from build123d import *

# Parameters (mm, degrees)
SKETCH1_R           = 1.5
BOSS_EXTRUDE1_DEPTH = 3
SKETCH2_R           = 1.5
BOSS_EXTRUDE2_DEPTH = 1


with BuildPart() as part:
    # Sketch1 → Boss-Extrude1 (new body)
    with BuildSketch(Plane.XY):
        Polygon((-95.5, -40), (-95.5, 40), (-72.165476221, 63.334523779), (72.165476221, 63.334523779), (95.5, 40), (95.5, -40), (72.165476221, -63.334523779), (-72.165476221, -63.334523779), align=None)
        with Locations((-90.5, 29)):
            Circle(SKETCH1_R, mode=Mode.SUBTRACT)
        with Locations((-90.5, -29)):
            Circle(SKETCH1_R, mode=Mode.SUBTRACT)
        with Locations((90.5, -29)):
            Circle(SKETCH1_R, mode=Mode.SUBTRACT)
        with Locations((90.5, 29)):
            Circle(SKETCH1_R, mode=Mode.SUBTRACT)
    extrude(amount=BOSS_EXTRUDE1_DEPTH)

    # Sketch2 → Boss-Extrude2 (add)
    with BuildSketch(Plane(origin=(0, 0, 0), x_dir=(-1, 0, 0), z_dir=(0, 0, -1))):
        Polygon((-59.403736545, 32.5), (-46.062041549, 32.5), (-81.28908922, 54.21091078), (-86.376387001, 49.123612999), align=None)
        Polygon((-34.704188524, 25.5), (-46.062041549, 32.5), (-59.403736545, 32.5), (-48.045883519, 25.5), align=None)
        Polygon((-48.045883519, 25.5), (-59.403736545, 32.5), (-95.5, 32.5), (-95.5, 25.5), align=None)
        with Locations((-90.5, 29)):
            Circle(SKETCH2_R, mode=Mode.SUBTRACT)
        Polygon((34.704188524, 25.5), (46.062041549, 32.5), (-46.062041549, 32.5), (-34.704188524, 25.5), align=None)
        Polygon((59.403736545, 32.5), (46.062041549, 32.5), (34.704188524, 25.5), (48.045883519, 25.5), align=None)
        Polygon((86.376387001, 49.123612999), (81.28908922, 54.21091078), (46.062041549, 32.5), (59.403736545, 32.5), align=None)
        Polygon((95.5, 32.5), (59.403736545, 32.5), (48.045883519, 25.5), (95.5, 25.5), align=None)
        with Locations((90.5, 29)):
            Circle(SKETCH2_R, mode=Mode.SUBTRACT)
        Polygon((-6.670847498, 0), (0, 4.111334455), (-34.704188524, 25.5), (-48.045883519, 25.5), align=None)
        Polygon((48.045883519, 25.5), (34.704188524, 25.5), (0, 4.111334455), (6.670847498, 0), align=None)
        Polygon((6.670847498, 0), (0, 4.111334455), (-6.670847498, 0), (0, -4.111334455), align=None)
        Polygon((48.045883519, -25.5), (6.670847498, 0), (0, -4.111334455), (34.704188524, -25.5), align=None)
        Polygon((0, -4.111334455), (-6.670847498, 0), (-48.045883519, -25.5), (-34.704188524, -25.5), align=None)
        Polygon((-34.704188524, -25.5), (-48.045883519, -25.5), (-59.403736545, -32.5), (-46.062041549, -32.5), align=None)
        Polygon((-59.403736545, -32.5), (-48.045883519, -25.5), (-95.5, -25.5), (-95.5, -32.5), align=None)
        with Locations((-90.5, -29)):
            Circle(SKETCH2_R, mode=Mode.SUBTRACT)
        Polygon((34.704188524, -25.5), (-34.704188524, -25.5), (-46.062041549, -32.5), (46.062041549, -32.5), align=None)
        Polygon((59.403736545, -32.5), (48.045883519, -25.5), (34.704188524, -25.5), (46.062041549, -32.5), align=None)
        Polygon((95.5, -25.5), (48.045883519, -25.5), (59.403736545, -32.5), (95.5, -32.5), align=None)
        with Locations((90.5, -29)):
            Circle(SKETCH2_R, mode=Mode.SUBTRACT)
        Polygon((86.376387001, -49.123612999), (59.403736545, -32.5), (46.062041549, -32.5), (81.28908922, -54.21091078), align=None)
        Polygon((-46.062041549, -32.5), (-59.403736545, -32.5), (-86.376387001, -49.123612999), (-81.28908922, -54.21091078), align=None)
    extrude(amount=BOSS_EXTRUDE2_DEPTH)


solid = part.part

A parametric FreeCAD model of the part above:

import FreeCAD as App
import Part
import Sketcher

doc = App.newDocument("Part")
params = doc.addObject("Spreadsheet::Sheet", "Params")
for row, (alias, value) in enumerate([
    ("sketch1_diameter", "3 mm"),
    ("sketch1_height", "80 mm"),
    ("sketch1_length", "33 mm"),
    ("pad1_length", "3 mm"),
    ("sketch2_diameter", "3 mm"),
    ("sketch2_height", "7 mm"),
    ("pad2_length", "1 mm"),
], start=1):
    params.set(f"A{row}", alias)
    params.set(f"B{row}", "=" + value)
    params.setAlias(f"B{row}", alias)

body = doc.addObject("PartDesign::Body", "Body")

# Sketch on XY plane
sketch1 = body.newObject("Sketcher::SketchObject", "Sketch")
sketch1.AttachmentSupport = (doc.getObject("XY_Plane"), [""])
sketch1.MapMode = "FlatFace"
sketch1.addGeometry([
    Part.LineSegment(App.Vector(-95.5, 40, 0), App.Vector(-95.5, -40, 0)),  # 0
    Part.LineSegment(App.Vector(-95.5, -40, 0), App.Vector(-72.165476, -63.334524, 0)),  # 1
    Part.LineSegment(App.Vector(-72.165476, -63.334524, 0), App.Vector(72.165476, -63.334524, 0)),  # 2
    Part.LineSegment(App.Vector(72.165476, -63.334524, 0), App.Vector(95.5, -40, 0)),  # 3
    Part.LineSegment(App.Vector(95.5, -40, 0), App.Vector(95.5, 40, 0)),  # 4
    Part.LineSegment(App.Vector(95.5, 40, 0), App.Vector(72.165476, 63.334524, 0)),  # 5
    Part.LineSegment(App.Vector(72.165476, 63.334524, 0), App.Vector(-72.165476, 63.334524, 0)),  # 6
    Part.LineSegment(App.Vector(-72.165476, 63.334524, 0), App.Vector(-95.5, 40, 0)),  # 7
    Part.Circle(App.Vector(90.5, -29, 0), App.Vector(0, 0, 1), 1.5),  # 8
    Part.Circle(App.Vector(-90.5, -29, 0), App.Vector(0, 0, 1), 1.5),  # 9
    Part.Circle(App.Vector(90.5, 29, 0), App.Vector(0, 0, 1), 1.5),  # 10
    Part.Circle(App.Vector(-90.5, 29, 0), App.Vector(0, 0, 1), 1.5),  # 11
], False)
sketch1.addConstraint([
    Sketcher.Constraint("Coincident", 0, 2, 1, 1),
    Sketcher.Constraint("Coincident", 1, 2, 2, 1),
    Sketcher.Constraint("Coincident", 2, 2, 3, 1),
    Sketcher.Constraint("Coincident", 3, 2, 4, 1),
    Sketcher.Constraint("Coincident", 4, 2, 5, 1),
    Sketcher.Constraint("Coincident", 5, 2, 6, 1),
    Sketcher.Constraint("Coincident", 6, 2, 7, 1),
    Sketcher.Constraint("Coincident", 7, 2, 0, 1),
    Sketcher.Constraint("Vertical", 0),
    Sketcher.Constraint("Horizontal", 2),
    Sketcher.Constraint("Vertical", 4),
    Sketcher.Constraint("Horizontal", 6),
    Sketcher.Constraint("Equal", 8, 9),
    Sketcher.Constraint("Equal", 9, 10),
    Sketcher.Constraint("Equal", 10, 11),
    Sketcher.Constraint("Symmetric", 9, 3, 10, 3, -1, 1),
    Sketcher.Constraint("Symmetric", 8, 3, 11, 3, -1, 1),
    Sketcher.Constraint("Symmetric", 0, 2, 4, 2, -1, 1),
    Sketcher.Constraint("Symmetric", 1, 2, 5, 2, -1, 1),
    Sketcher.Constraint("Symmetric", 8, 3, 9, 3, -2),
    Sketcher.Constraint("Perpendicular", 1, 3),
    Sketcher.Constraint("Perpendicular", 5, 7),
    Sketcher.Constraint("Horizontal", 0, 2, 3, 2),
    Sketcher.Constraint("Horizontal", 4, 2, 7, 2),
    Sketcher.Constraint("Vertical", 2, 2, 5, 2),
    Sketcher.Constraint("Diameter", 8, 3.0),
    Sketcher.Constraint("DistanceY", 0, 2, 0, 1, 80.0),
    Sketcher.Constraint("Distance", 1, 33.0),
    Sketcher.Constraint("DistanceY", 8, 3, -1, 1, 29.0),
    Sketcher.Constraint("DistanceX", 9, 3, 8, 3, 181.0),
    Sketcher.Constraint("DistanceX", 0, 2, 9, 3, 5.0),
])
sketch1.setExpression("Constraints[25]", "Params.sketch1_diameter")
sketch1.setExpression("Constraints[26]", "Params.sketch1_height")
sketch1.setExpression("Constraints[27]", "Params.sketch1_length")
pad1 = body.newObject("PartDesign::Pad", "Pad")
pad1.Profile = sketch1
pad1.setExpression("Length", "Params.pad1_length")

# Sketch on XY plane
sketch2 = body.newObject("Sketcher::SketchObject", "Sketch001")
sketch2.AttachmentSupport = (doc.getObject("XY_Plane"), [""])
sketch2.MapMode = "FlatFace"
sketch2.addGeometry([
    Part.LineSegment(App.Vector(95.5, -32.5, 0), App.Vector(59.403737, -32.5, 0)),  # 0
    Part.LineSegment(App.Vector(59.403737, -32.5, 0), App.Vector(86.376387, -49.123613, 0)),  # 1
    Part.LineSegment(App.Vector(86.376387, -49.123613, 0), App.Vector(81.289089, -54.210911, 0)),  # 2
    Part.LineSegment(App.Vector(81.289089, -54.210911, 0), App.Vector(46.062042, -32.5, 0)),  # 3
    Part.LineSegment(App.Vector(46.062042, -32.5, 0), App.Vector(-46.062042, -32.5, 0)),  # 4
    Part.LineSegment(App.Vector(-46.062042, -32.5, 0), App.Vector(-81.289089, -54.210911, 0)),  # 5
    Part.LineSegment(App.Vector(-81.289089, -54.210911, 0), App.Vector(-86.376387, -49.123613, 0)),  # 6
    Part.LineSegment(App.Vector(-86.376387, -49.123613, 0), App.Vector(-59.403737, -32.5, 0)),  # 7
    Part.LineSegment(App.Vector(-59.403737, -32.5, 0), App.Vector(-95.5, -32.5, 0)),  # 8
    Part.LineSegment(App.Vector(-95.5, -32.5, 0), App.Vector(-95.5, -25.5, 0)),  # 9
    Part.LineSegment(App.Vector(-95.5, -25.5, 0), App.Vector(-48.045884, -25.5, 0)),  # 10
    Part.LineSegment(App.Vector(-48.045884, -25.5, 0), App.Vector(-6.670847, 0, 0)),  # 11
    Part.LineSegment(App.Vector(-6.670847, 0, 0), App.Vector(-48.045884, 25.5, 0)),  # 12
    Part.LineSegment(App.Vector(-48.045884, 25.5, 0), App.Vector(-95.5, 25.5, 0)),  # 13
    Part.LineSegment(App.Vector(-95.5, 25.5, 0), App.Vector(-95.5, 32.5, 0)),  # 14
    Part.LineSegment(App.Vector(-95.5, 32.5, 0), App.Vector(-59.403737, 32.5, 0)),  # 15
    Part.LineSegment(App.Vector(-59.403737, 32.5, 0), App.Vector(-86.376387, 49.123613, 0)),  # 16
    Part.LineSegment(App.Vector(-86.376387, 49.123613, 0), App.Vector(-81.289089, 54.210911, 0)),  # 17
    Part.LineSegment(App.Vector(-81.289089, 54.210911, 0), App.Vector(-46.062042, 32.5, 0)),  # 18
    Part.LineSegment(App.Vector(-46.062042, 32.5, 0), App.Vector(46.062042, 32.5, 0)),  # 19
    Part.LineSegment(App.Vector(46.062042, 32.5, 0), App.Vector(81.289089, 54.210911, 0)),  # 20
    Part.LineSegment(App.Vector(81.289089, 54.210911, 0), App.Vector(86.376387, 49.123613, 0)),  # 21
    Part.LineSegment(App.Vector(86.376387, 49.123613, 0), App.Vector(59.403737, 32.5, 0)),  # 22
    Part.LineSegment(App.Vector(59.403737, 32.5, 0), App.Vector(95.5, 32.5, 0)),  # 23
    Part.LineSegment(App.Vector(95.5, 32.5, 0), App.Vector(95.5, 25.5, 0)),  # 24
    Part.LineSegment(App.Vector(95.5, 25.5, 0), App.Vector(48.045884, 25.5, 0)),  # 25
    Part.LineSegment(App.Vector(48.045884, 25.5, 0), App.Vector(6.670847, 0, 0)),  # 26
    Part.LineSegment(App.Vector(6.670847, 0, 0), App.Vector(48.045884, -25.5, 0)),  # 27
    Part.LineSegment(App.Vector(48.045884, -25.5, 0), App.Vector(95.5, -25.5, 0)),  # 28
    Part.LineSegment(App.Vector(95.5, -25.5, 0), App.Vector(95.5, -32.5, 0)),  # 29
    Part.Circle(App.Vector(90.5, -29, 0), App.Vector(0, 0, 1), 1.5),  # 30
    Part.Circle(App.Vector(-90.5, -29, 0), App.Vector(0, 0, 1), 1.5),  # 31
    Part.LineSegment(App.Vector(0, -4.111334, 0), App.Vector(-34.704189, -25.5, 0)),  # 32
    Part.LineSegment(App.Vector(-34.704189, -25.5, 0), App.Vector(34.704189, -25.5, 0)),  # 33
    Part.LineSegment(App.Vector(34.704189, -25.5, 0), App.Vector(0, -4.111334, 0)),  # 34
    Part.Circle(App.Vector(90.5, 29, 0), App.Vector(0, 0, 1), 1.5),  # 35
    Part.LineSegment(App.Vector(-34.704189, 25.5, 0), App.Vector(0, 4.111334, 0)),  # 36
    Part.LineSegment(App.Vector(0, 4.111334, 0), App.Vector(34.704189, 25.5, 0)),  # 37
    Part.LineSegment(App.Vector(34.704189, 25.5, 0), App.Vector(-34.704189, 25.5, 0)),  # 38
    Part.Circle(App.Vector(-90.5, 29, 0), App.Vector(0, 0, 1), 1.5),  # 39
], False)
sketch2.addConstraint([
    Sketcher.Constraint("Coincident", 0, 2, 1, 1),
    Sketcher.Constraint("Coincident", 1, 2, 2, 1),
    Sketcher.Constraint("Coincident", 2, 2, 3, 1),
    Sketcher.Constraint("Coincident", 3, 2, 4, 1),
    Sketcher.Constraint("Coincident", 4, 2, 5, 1),
    Sketcher.Constraint("Coincident", 5, 2, 6, 1),
    Sketcher.Constraint("Coincident", 6, 2, 7, 1),
    Sketcher.Constraint("Coincident", 7, 2, 8, 1),
    Sketcher.Constraint("Coincident", 8, 2, 9, 1),
    Sketcher.Constraint("Coincident", 9, 2, 10, 1),
    Sketcher.Constraint("Coincident", 10, 2, 11, 1),
    Sketcher.Constraint("Coincident", 11, 2, 12, 1),
    Sketcher.Constraint("Coincident", 12, 2, 13, 1),
    Sketcher.Constraint("Coincident", 13, 2, 14, 1),
    Sketcher.Constraint("Coincident", 14, 2, 15, 1),
    Sketcher.Constraint("Coincident", 15, 2, 16, 1),
    Sketcher.Constraint("Coincident", 16, 2, 17, 1),
    Sketcher.Constraint("Coincident", 17, 2, 18, 1),
    Sketcher.Constraint("Coincident", 18, 2, 19, 1),
    Sketcher.Constraint("Coincident", 19, 2, 20, 1),
    Sketcher.Constraint("Coincident", 20, 2, 21, 1),
    Sketcher.Constraint("Coincident", 21, 2, 22, 1),
    Sketcher.Constraint("Coincident", 22, 2, 23, 1),
    Sketcher.Constraint("Coincident", 23, 2, 24, 1),
    Sketcher.Constraint("Coincident", 24, 2, 25, 1),
    Sketcher.Constraint("Coincident", 25, 2, 26, 1),
    Sketcher.Constraint("Coincident", 26, 2, 27, 1),
    Sketcher.Constraint("Coincident", 27, 2, 28, 1),
    Sketcher.Constraint("Coincident", 28, 2, 29, 1),
    Sketcher.Constraint("Coincident", 29, 2, 0, 1),
    Sketcher.Constraint("Coincident", 32, 2, 33, 1),
    Sketcher.Constraint("Coincident", 33, 2, 34, 1),
    Sketcher.Constraint("Coincident", 34, 2, 32, 1),
    Sketcher.Constraint("Coincident", 36, 2, 37, 1),
    Sketcher.Constraint("Coincident", 37, 2, 38, 1),
    Sketcher.Constraint("Coincident", 38, 2, 36, 1),
    Sketcher.Constraint("Horizontal", 0),
    Sketcher.Constraint("Horizontal", 4),
    Sketcher.Constraint("Horizontal", 8),
    Sketcher.Constraint("Vertical", 9),
    Sketcher.Constraint("Horizontal", 10),
    Sketcher.Constraint("Horizontal", 13),
    Sketcher.Constraint("Vertical", 14),
    Sketcher.Constraint("Horizontal", 15),
    Sketcher.Constraint("Horizontal", 19),
    Sketcher.Constraint("Horizontal", 23),
    Sketcher.Constraint("Vertical", 24),
    Sketcher.Constraint("Horizontal", 25),
    Sketcher.Constraint("Horizontal", 28),
    Sketcher.Constraint("Vertical", 29),
    Sketcher.Constraint("Horizontal", 33),
    Sketcher.Constraint("Horizontal", 38),
    Sketcher.Constraint("Equal", 30, 31),
    Sketcher.Constraint("Equal", 31, 35),
    Sketcher.Constraint("Equal", 35, 39),
    Sketcher.Constraint("Symmetric", 31, 3, 35, 3, -1, 1),
    Sketcher.Constraint("Symmetric", 30, 3, 39, 3, -1, 1),
    Sketcher.Constraint("Symmetric", 0, 2, 15, 2, -1, 1),
    Sketcher.Constraint("Symmetric", 1, 2, 16, 2, -1, 1),
    Sketcher.Constraint("Symmetric", 2, 2, 17, 2, -1, 1),
    Sketcher.Constraint("Symmetric", 3, 2, 18, 2, -1, 1),
    Sketcher.Constraint("Symmetric", 5, 2, 20, 2, -1, 1),
    Sketcher.Constraint("Symmetric", 6, 2, 21, 2, -1, 1),
    Sketcher.Constraint("Symmetric", 7, 2, 22, 2, -1, 1),
    Sketcher.Constraint("Symmetric", 9, 2, 24, 2, -1, 1),
    Sketcher.Constraint("Symmetric", 11, 2, 26, 2, -1, 1),
    Sketcher.Constraint("Symmetric", 12, 2, 27, 2, -1, 1),
    Sketcher.Constraint("Symmetric", 34, 2, 36, 2, -1, 1),
    Sketcher.Constraint("Symmetric", 32, 2, 37, 2, -1, 1),
    Sketcher.Constraint("Symmetric", 30, 3, 31, 3, -2),
    Sketcher.Constraint("Symmetric", 2, 2, 5, 2, -2),
    Sketcher.Constraint("Symmetric", 1, 2, 6, 2, -2),
    Sketcher.Constraint("Symmetric", 0, 2, 7, 2, -2),
    Sketcher.Constraint("Symmetric", 13, 2, 24, 2, -2),
    Sketcher.Constraint("PointOnObject", 11, 2, -1),
    Sketcher.Constraint("PointOnObject", 34, 2, -2),
    Sketcher.Constraint("Parallel", 1, 3),
    Sketcher.Constraint("Perpendicular", 2, 6),
    Sketcher.Constraint("Parallel", 5, 7),
    Sketcher.Constraint("Parallel", 7, 11),
    Sketcher.Constraint("Parallel", 3, 12),
    Sketcher.Constraint("Parallel", 11, 20),
    Sketcher.Constraint("Parallel", 22, 26),
    Sketcher.Constraint("Parallel", 26, 32),
    Sketcher.Constraint("Parallel", 27, 34),
    Sketcher.Constraint("Parallel", 34, 36),
    Sketcher.Constraint("Horizontal", 0, 2, 3, 2),
    Sketcher.Constraint("Horizontal", 28, 2, 32, 2),
    Sketcher.Constraint("Vertical", 24, 2, 28, 2),
    Sketcher.Constraint("Diameter", 30, 3.0),
    Sketcher.Constraint("DistanceY", 9, 1, 9, 2, 7.0),
    Sketcher.Constraint("DistanceY", 30, 3, -1, 1, 29.0),
    Sketcher.Constraint("DistanceX", 31, 3, 30, 3, 181.0),
    Sketcher.Constraint("DistanceX", 8, 2, 31, 3, 5.0),
    Sketcher.Constraint("DistanceY", 10, 2, 12, 2, 51.0),
    Sketcher.Constraint("Distance", 3, 41.38005),
    Sketcher.Constraint("Distance", 11, 48.601889),
    Sketcher.Constraint("DistanceX", 0, 2, 0, 1, 36.096263),
    Sketcher.Constraint("DistanceX", 4, 2, 4, 1, 92.124083),
    Sketcher.Constraint("DistanceX", 10, 1, 10, 2, 47.454116),
    Sketcher.Constraint("DistanceX", 33, 1, 33, 2, 69.408377),
])
sketch2.setExpression("Constraints[89]", "Params.sketch2_diameter")
sketch2.setExpression("Constraints[90]", "Params.sketch2_height")
pad2 = body.newObject("PartDesign::Pad", "Pad001")
pad2.Profile = sketch2
pad2.setExpression("Length", "Params.pad2_length")
pad2.Reversed = True

doc.recompute()
